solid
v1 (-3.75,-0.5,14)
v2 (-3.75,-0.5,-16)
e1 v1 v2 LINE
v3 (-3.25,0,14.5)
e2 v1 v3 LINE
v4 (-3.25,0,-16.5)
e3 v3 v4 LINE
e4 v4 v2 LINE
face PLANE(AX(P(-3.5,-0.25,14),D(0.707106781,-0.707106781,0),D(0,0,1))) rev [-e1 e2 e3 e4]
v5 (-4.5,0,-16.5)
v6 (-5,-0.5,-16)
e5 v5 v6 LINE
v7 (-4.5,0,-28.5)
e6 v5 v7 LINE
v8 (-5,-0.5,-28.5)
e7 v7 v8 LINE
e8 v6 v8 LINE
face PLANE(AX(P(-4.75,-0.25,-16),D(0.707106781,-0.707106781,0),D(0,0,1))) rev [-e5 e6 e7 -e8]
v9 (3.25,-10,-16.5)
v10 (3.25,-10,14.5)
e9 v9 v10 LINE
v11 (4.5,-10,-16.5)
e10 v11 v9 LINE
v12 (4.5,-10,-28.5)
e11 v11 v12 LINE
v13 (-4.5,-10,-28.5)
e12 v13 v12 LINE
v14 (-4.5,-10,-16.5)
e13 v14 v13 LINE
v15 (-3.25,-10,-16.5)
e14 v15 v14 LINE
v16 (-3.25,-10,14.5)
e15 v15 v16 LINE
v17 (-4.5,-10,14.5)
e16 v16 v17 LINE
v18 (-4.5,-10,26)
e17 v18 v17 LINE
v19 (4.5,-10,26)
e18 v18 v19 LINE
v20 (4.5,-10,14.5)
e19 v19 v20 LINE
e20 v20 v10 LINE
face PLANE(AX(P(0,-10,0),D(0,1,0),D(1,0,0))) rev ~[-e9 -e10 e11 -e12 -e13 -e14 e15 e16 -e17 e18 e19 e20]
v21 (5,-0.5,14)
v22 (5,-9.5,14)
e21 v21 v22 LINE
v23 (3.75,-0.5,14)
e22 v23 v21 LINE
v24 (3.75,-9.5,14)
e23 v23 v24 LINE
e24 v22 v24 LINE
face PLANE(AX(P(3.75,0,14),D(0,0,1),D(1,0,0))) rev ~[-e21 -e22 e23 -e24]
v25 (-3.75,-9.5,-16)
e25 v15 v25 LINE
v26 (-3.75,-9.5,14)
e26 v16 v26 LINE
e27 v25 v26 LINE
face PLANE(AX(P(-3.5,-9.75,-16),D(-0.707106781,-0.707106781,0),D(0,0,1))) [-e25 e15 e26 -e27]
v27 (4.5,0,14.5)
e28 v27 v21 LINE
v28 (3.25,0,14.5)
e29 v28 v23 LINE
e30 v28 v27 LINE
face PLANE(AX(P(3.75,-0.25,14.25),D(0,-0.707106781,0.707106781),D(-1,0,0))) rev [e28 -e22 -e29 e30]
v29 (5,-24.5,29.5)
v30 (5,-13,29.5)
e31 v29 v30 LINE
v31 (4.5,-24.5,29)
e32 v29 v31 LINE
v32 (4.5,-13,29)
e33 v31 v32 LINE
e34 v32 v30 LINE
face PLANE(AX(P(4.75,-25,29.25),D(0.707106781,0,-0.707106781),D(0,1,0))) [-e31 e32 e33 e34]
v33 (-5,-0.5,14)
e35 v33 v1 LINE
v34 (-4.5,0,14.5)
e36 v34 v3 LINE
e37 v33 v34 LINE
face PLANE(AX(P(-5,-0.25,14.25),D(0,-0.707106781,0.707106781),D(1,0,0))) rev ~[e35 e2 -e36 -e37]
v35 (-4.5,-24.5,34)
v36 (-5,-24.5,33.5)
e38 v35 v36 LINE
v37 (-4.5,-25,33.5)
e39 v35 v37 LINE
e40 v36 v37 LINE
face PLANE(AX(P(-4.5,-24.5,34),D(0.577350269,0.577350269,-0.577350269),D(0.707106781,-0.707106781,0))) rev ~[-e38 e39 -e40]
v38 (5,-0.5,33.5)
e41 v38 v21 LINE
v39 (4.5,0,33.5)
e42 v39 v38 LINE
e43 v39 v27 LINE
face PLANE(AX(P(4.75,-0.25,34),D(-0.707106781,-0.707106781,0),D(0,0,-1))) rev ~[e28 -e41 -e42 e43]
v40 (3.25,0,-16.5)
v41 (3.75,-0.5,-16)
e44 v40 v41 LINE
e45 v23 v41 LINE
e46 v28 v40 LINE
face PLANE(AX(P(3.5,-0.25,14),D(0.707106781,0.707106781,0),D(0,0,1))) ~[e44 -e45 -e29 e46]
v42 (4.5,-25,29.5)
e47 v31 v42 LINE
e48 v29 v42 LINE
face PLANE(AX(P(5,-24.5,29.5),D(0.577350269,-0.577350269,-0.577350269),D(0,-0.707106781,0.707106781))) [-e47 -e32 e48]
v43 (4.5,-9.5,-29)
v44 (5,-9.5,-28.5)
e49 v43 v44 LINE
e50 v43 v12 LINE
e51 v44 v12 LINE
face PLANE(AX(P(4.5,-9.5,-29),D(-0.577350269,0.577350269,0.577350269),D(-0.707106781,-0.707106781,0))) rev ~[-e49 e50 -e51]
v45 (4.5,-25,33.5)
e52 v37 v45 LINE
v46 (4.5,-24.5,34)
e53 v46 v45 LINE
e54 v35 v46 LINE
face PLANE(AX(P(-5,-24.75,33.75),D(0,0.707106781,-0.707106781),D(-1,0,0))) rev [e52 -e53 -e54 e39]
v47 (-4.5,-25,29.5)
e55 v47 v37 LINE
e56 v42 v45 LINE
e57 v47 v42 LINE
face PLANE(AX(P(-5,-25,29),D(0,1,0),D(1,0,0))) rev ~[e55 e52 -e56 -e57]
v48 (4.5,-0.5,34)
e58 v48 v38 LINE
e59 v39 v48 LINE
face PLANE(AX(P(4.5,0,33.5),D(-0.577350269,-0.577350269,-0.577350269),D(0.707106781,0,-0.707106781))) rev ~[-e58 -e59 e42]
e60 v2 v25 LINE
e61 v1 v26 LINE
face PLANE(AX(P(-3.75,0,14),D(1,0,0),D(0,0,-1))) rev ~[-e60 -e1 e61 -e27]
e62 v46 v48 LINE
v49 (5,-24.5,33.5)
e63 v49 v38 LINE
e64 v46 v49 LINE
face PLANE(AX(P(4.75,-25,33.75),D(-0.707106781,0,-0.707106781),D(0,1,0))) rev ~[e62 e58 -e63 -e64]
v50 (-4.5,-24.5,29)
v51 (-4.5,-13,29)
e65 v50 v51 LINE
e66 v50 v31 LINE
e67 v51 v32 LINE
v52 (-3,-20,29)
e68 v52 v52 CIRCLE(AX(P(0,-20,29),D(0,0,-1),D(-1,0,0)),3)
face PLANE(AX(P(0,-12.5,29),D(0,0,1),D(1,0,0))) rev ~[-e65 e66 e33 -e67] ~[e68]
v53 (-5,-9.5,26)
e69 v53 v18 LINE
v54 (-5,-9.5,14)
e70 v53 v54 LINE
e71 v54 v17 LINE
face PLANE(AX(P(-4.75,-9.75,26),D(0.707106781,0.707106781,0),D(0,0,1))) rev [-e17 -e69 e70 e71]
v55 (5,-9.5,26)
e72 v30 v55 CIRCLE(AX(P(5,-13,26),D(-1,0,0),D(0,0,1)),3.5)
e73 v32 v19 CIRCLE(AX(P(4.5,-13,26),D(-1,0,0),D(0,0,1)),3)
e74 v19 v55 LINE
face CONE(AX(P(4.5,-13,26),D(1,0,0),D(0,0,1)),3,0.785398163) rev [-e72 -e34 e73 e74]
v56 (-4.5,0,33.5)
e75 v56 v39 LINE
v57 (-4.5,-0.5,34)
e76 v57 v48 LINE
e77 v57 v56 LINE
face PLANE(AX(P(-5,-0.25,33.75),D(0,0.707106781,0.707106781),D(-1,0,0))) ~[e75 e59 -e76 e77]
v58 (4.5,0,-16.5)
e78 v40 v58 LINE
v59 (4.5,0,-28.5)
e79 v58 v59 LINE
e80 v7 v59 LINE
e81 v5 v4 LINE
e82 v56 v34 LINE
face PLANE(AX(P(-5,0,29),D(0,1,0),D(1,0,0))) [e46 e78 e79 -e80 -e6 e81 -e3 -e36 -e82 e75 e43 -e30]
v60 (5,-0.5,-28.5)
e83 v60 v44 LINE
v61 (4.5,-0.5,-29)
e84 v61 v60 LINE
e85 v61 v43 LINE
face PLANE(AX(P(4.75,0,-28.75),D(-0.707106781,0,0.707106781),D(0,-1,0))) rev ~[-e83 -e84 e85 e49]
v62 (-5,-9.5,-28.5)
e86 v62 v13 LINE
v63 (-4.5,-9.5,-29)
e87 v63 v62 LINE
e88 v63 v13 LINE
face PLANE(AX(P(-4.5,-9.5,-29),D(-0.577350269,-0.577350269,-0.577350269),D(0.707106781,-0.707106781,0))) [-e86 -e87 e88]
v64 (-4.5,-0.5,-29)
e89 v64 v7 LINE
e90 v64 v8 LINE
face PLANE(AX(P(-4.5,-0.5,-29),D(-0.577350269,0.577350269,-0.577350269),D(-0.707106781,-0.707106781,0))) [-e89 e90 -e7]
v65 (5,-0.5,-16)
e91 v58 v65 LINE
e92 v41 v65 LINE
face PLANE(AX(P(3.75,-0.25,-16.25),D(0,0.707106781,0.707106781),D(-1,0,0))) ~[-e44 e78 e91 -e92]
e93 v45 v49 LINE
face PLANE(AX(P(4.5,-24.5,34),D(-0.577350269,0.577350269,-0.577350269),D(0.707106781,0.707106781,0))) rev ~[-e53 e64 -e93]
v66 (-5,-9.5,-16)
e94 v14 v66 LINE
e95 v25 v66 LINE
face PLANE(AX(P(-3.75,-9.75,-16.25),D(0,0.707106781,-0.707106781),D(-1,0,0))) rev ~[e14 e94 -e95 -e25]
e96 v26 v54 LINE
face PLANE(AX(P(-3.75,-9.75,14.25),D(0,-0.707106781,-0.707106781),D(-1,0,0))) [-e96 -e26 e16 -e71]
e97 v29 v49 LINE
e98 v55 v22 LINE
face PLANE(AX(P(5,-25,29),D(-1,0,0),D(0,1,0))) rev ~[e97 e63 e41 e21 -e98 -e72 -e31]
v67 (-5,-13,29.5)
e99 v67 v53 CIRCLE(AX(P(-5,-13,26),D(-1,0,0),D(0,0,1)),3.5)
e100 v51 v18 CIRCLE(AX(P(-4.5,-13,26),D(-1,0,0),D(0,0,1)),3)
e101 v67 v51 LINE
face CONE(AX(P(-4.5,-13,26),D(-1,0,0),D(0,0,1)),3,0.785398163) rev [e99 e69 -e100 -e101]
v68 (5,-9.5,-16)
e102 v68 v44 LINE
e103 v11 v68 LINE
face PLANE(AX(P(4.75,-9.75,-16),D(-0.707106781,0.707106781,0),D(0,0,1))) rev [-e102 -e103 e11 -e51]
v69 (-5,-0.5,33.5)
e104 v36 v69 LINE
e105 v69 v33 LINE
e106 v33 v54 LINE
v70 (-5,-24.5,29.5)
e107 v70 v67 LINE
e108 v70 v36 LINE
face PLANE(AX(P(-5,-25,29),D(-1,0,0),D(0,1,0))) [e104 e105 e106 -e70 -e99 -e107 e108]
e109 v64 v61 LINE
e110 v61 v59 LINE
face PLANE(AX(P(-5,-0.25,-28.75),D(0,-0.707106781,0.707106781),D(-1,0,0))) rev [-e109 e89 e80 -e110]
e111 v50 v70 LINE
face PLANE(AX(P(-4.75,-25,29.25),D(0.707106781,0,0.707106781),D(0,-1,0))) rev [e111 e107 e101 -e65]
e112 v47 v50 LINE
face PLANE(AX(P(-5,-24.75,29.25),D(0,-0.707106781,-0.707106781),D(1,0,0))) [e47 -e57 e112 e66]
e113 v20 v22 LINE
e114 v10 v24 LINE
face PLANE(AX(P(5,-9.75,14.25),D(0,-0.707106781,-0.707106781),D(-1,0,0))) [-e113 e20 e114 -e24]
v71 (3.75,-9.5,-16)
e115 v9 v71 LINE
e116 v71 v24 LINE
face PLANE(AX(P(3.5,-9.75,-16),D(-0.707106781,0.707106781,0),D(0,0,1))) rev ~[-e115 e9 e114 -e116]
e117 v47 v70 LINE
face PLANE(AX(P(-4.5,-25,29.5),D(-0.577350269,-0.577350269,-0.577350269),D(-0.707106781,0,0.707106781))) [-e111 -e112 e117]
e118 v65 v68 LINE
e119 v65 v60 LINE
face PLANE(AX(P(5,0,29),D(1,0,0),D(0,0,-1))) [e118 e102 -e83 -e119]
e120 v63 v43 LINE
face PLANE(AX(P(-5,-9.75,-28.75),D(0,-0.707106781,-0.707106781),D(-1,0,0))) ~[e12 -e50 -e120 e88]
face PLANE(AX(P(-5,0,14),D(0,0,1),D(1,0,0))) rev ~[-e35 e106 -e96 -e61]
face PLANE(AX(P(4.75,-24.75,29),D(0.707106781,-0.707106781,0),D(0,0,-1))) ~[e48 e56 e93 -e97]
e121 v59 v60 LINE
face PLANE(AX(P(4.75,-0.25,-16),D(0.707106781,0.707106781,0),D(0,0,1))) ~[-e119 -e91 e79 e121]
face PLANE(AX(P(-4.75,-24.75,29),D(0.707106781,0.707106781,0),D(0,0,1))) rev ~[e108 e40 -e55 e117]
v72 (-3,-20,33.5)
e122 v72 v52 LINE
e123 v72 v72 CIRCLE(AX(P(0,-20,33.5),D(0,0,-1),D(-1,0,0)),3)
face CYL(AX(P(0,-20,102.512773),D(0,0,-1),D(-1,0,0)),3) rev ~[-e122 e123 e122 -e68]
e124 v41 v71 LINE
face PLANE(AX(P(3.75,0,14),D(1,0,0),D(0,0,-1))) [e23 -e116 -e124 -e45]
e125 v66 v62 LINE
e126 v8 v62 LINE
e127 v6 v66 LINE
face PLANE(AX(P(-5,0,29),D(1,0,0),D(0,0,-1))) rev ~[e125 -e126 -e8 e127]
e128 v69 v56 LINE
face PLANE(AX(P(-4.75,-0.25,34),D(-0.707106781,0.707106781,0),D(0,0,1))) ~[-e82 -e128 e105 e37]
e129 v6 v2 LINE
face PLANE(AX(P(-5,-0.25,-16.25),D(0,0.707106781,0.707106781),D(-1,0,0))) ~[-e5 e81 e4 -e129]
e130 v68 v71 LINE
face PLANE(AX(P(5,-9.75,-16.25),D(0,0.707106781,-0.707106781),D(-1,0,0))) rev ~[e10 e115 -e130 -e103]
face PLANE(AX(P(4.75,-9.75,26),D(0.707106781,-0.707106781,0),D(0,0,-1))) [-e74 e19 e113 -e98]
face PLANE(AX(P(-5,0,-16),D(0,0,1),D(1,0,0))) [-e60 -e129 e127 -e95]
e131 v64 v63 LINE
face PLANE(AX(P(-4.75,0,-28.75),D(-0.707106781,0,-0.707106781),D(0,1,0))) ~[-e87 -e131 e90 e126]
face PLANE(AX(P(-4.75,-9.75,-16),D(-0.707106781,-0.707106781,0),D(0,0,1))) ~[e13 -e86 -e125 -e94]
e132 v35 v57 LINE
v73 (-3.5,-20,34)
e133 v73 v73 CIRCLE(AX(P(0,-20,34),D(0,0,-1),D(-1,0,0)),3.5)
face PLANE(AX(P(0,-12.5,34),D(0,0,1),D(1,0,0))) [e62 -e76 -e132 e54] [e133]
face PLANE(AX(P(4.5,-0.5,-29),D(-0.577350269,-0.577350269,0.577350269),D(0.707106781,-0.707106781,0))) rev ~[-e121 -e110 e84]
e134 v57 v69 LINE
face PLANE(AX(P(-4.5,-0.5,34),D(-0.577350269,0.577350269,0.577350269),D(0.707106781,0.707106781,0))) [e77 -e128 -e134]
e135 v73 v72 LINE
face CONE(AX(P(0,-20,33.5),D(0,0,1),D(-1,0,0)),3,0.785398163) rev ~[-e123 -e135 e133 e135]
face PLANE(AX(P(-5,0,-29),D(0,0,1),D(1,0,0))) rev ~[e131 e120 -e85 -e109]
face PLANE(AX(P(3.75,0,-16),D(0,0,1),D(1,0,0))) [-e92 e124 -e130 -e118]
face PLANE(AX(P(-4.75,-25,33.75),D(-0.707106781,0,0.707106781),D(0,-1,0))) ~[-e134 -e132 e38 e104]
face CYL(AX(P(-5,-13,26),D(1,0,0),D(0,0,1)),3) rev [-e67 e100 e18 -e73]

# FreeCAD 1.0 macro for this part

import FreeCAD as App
import Part
import Sketcher
from FreeCAD import Vector
Q = App.Units.Quantity


def edges_at(feature, points):
    """Names of the edges that pass closest to the given points."""
    edges = feature.Shape.Edges
    near = lambda p: min(range(len(edges)), key=lambda i: edges[i].distToShape(Part.Vertex(*p))[0])
    return sorted({f"Edge{near(p) + 1}" for p in points})

doc = App.newDocument("Part")
body = doc.addObject("PartDesign::Body", "Body")

# Sketch on XZ plane
sketch1 = body.newObject("Sketcher::SketchObject", "Sketch")
sketch1.AttachmentSupport = (doc.getObject("XZ_Plane"), [""])
sketch1.MapMode = "FlatFace"
sketch1.addGeometry([
    Part.LineSegment(Vector(-5, -29, 0), Vector(-5, 29, 0)),
    Part.LineSegment(Vector(-5, 29, 0), Vector(5, 29, 0)),
    Part.LineSegment(Vector(5, 29, 0), Vector(5, -29, 0)),
    Part.LineSegment(Vector(5, -29, 0), Vector(-5, -29, 0)),
], False)
sketch1.addConstraint([
    Sketcher.Constraint("Coincident", 0, 2, 1, 1),
    Sketcher.Constraint("Coincident", 1, 2, 2, 1),
    Sketcher.Constraint("Coincident", 2, 2, 3, 1),
    Sketcher.Constraint("Coincident", 3, 2, 0, 1),
    Sketcher.Constraint("Vertical", 0),
    Sketcher.Constraint("Horizontal", 1),
    Sketcher.Constraint("Vertical", 2),
    Sketcher.Constraint("Horizontal", 3),
    Sketcher.Constraint("Symmetric", 0, 2, 2, 2, -1, 1),
    Sketcher.Constraint("DistanceX", 1, 1, 1, 2, Q("10 mm")),
    Sketcher.Constraint("DistanceY", 0, 1, 0, 2, Q("58 mm")),
])
pad1 = body.newObject("PartDesign::Pad", "Pad")
pad1.Profile = sketch1
pad1.Length = 10

# Sketch on XZ plane
sketch2 = body.newObject("Sketcher::SketchObject", "Sketch001")
sketch2.AttachmentSupport = (doc.getObject("XZ_Plane"), [""])
sketch2.MapMode = "FlatFace"
sketch2.addGeometry([
    Part.LineSegment(Vector(-5, -16, 0), Vector(-5, 14, 0)),
    Part.LineSegment(Vector(-5, 14, 0), Vector(-3.8, 14, 0)),
    Part.LineSegment(Vector(-3.8, 14, 0), Vector(-3.8, -16, 0)),
    Part.LineSegment(Vector(-3.8, -16, 0), Vector(-5, -16, 0)),
], False)
sketch2.addConstraint([
    Sketcher.Constraint("Coincident", 0, 2, 1, 1),
    Sketcher.Constraint("Coincident", 1, 2, 2, 1),
    Sketcher.Constraint("Coincident", 2, 2, 3, 1),
    Sketcher.Constraint("Coincident", 3, 2, 0, 1),
    Sketcher.Constraint("Vertical", 0),
    Sketcher.Constraint("Horizontal", 1),
    Sketcher.Constraint("Vertical", 2),
    Sketcher.Constraint("Horizontal", 3),
    Sketcher.Constraint("DistanceY", 0, 1, 0, 2, Q("30 mm")),
    Sketcher.Constraint("DistanceX", 0, 2, -1, 1, Q("5 mm")),
    Sketcher.Constraint("DistanceY", -1, 1, 0, 2, Q("14 mm")),
    Sketcher.Constraint("DistanceX", 1, 1, 1, 2, Q("1.25 mm")),
])
pocket1 = body.newObject("PartDesign::Pocket", "Pocket")
pocket1.Profile = sketch2
pocket1.Type = "UpToFirst"
pocket1.Reversed = True

# Sketch on XZ plane
sketch3 = body.newObject("Sketcher::SketchObject", "Sketch002")
sketch3.AttachmentSupport = (doc.getObject("XZ_Plane"), [""])
sketch3.MapMode = "FlatFace"
sketch3.addGeometry([
    Part.LineSegment(Vector(3.8, -16, 0), Vector(3.8, 14, 0)),
    Part.LineSegment(Vector(3.8, 14, 0), Vector(5, 14, 0)),
    Part.LineSegment(Vector(5, 14, 0), Vector(5, -16, 0)),
    Part.LineSegment(Vector(5, -16, 0), Vector(3.8, -16, 0)),
], False)
sketch3.addConstraint([
    Sketcher.Constraint("Coincident", 0, 2, 1, 1),
    Sketcher.Constraint("Coincident", 1, 2, 2, 1),
    Sketcher.Constraint("Coincident", 2, 2, 3, 1),
    Sketcher.Constraint("Coincident", 3, 2, 0, 1),
    Sketcher.Constraint("Vertical", 0),
    Sketcher.Constraint("Horizontal", 1),
    Sketcher.Constraint("Vertical", 2),
    Sketcher.Constraint("Horizontal", 3),
    Sketcher.Constraint("DistanceY", 0, 1, 0, 2, Q("30 mm")),
    Sketcher.Constraint("DistanceY", -1, 1, 0, 2, Q("14 mm")),
    Sketcher.Constraint("DistanceX", -1, 1, 1, 2, Q("5 mm")),
    Sketcher.Constraint("DistanceX", 1, 1, 1, 2, Q("1.25 mm")),
])
pocket2 = body.newObject("PartDesign::Pocket", "Pocket001")
pocket2.Profile = sketch3
pocket2.Type = "UpToFirst"
pocket2.Reversed = True

# Sketch on XY plane
sketch4 = body.newObject("Sketcher::SketchObject", "Sketch003")
sketch4.AttachmentSupport = (doc.getObject("XY_Plane"), [""])
sketch4.MapMode = "FlatFace"
sketch4.AttachmentOffset = App.Placement(Vector(0, 0, 29), App.Rotation())
sketch4.addGeometry([
    Part.LineSegment(Vector(-5, 0, 0), Vector(-5, -25, 0)),
    Part.LineSegment(Vector(-5, -25, 0), Vector(5, -25, 0)),
    Part.LineSegment(Vector(5, -25, 0), Vector(5, 0, 0)),
    Part.LineSegment(Vector(5, 0, 0), Vector(-5, 0, 0)),
], False)
sketch4.addConstraint([
    Sketcher.Constraint("Coincident", 0, 2, 1, 1),
    Sketcher.Constraint("Coincident", 1, 2, 2, 1),
    Sketcher.Constraint("Coincident", 2, 2, 3, 1),
    Sketcher.Constraint("Coincident", 3, 2, 0, 1),
    Sketcher.Constraint("Vertical", 0),
    Sketcher.Constraint("Horizontal", 1),
    Sketcher.Constraint("Vertical", 2),
    Sketcher.Constraint("Horizontal", 3),
    Sketcher.Constraint("Symmetric", 2, 2, 3, 2, -1, 1),
    Sketcher.Constraint("DistanceX", 1, 1, 1, 2, Q("10 mm")),
    Sketcher.Constraint("DistanceY", 0, 2, 0, 1, Q("25 mm")),
])
pad2 = body.newObject("PartDesign::Pad", "Pad001")
pad2.Profile = sketch4
pad2.Length = 5
doc.recompute()

fillet = body.newObject("PartDesign::Fillet", "Fillet")
fillet.Base = (pad2, edges_at(pad2, [(0, -10, 29)]))
fillet.Radius = 3

# Sketch on XY plane
sketch5 = body.newObject("Sketcher::SketchObject", "Sketch004")
sketch5.AttachmentSupport = (doc.getObject("XY_Plane"), [""])
sketch5.MapMode = "FlatFace"
sketch5.AttachmentOffset = App.Placement(Vector(0, 0, 34), App.Rotation())
sketch5.addGeometry(Part.Circle(Vector(0, -20, 0), Vector(0, 0, 1), 3), False)
sketch5.addConstraint([
    Sketcher.Constraint("PointOnObject", 0, 3, -2),
    Sketcher.Constraint("Diameter", 0, Q("6 mm")),
    Sketcher.Constraint("DistanceY", 0, 3, -1, 1, Q("20 mm")),
])
doc.recompute()
hole = body.newObject("PartDesign::Hole", "Hole")
hole.Profile = sketch5
hole.ThreadType = "None"
hole.Diameter = 6
hole.DepthType = "ThroughAll"
doc.recompute()

chamfer = body.newObject("PartDesign::Chamfer", "Chamfer")
chamfer.Base = (hole, edges_at(hole, [
    (-5, -10, -22.5),
    (5, 0, -22.5),
    (-5, 0, 24),
    (5, -10, -22.5),
    (-5, -10, 20),
    (-4.375, -10, -16),
    (-3.75, -10, -1),
    (-4.375, -10, 14),
    (-4.375, 0, 14),
    (-3.75, 0, -1),
    (-4.375, 0, -16),
    (4.375, -10, 14),
    (3.75, -10, -1),
    (4.375, -10, -16),
    (4.375, 0, -16),
    (3.75, 0, -1),
    (4.375, 0, 14),
    (0, -25, 29),
    (-5, -25, 31.5),
    (5, -19, 29),
    (5, -25, 31.5),
    (-5, -12.5, 34),
    (0, -25, 34),
    (5, -12.5, 34),
    (0, 0, 34),
    (-5, 0, -22.5),
    (0, 0, -29),
    (-5, -19, 29),
    (5, -10, 20),
    (5, -10.879, 28.121),
    (-5, -10.879, 28.121),
    (5, 0, 24),
    (3, -20, 34),
    (-5, -5, -29),
    (5, -5, -29),
    (0, -10, -29),
]))
chamfer.Size = 0.5

doc.recompute()
